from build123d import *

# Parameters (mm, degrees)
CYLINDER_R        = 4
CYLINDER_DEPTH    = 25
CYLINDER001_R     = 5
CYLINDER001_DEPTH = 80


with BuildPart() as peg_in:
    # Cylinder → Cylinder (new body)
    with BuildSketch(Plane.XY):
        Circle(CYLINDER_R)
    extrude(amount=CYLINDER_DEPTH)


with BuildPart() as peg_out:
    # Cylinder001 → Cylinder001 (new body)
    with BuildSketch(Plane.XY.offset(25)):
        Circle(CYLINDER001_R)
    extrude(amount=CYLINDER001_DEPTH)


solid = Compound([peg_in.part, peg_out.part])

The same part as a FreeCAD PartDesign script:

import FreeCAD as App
import Part
import Sketcher
from FreeCAD import Vector
Q = App.Units.Quantity

doc = App.newDocument("Part")
body = doc.addObject("PartDesign::Body", "Body")

sketch1 = body.newObject("Sketcher::SketchObject", "Sketch")
sketch1.AttachmentSupport = (doc.getObject("XY_Plane"), [""])
sketch1.MapMode = "FlatFace"
sketch1.addGeometry(Part.Circle(Vector(0, 0, 0), Vector(0, 0, 1), 4), False)
sketch1.addConstraint([
    Sketcher.Constraint("Coincident", 0, 3, -1, 1),
    Sketcher.Constraint("Diameter", 0, Q("8 mm")),
])
pad1 = body.newObject("PartDesign::Pad", "Pad")
pad1.Profile = sketch1
pad1.Length = 25
body2 = doc.addObject("PartDesign::Body", "Body001")

sketch2 = body2.newObject("Sketcher::SketchObject", "Sketch001")
sketch2.AttachmentSupport = (doc.getObject("XY_Plane001"), [""])
sketch2.MapMode = "FlatFace"
sketch2.AttachmentOffset = App.Placement(Vector(0, 0, 25), App.Rotation())
sketch2.addGeometry(Part.Circle(Vector(0, 0, 0), Vector(0, 0, 1), 5), False)
sketch2.addConstraint([
    Sketcher.Constraint("Coincident", 0, 3, -1, 1),
    Sketcher.Constraint("Diameter", 0, Q("10 mm")),
])
pad2 = body2.newObject("PartDesign::Pad", "Pad001")
pad2.Profile = sketch2
pad2.Length = 80

doc.recompute()
